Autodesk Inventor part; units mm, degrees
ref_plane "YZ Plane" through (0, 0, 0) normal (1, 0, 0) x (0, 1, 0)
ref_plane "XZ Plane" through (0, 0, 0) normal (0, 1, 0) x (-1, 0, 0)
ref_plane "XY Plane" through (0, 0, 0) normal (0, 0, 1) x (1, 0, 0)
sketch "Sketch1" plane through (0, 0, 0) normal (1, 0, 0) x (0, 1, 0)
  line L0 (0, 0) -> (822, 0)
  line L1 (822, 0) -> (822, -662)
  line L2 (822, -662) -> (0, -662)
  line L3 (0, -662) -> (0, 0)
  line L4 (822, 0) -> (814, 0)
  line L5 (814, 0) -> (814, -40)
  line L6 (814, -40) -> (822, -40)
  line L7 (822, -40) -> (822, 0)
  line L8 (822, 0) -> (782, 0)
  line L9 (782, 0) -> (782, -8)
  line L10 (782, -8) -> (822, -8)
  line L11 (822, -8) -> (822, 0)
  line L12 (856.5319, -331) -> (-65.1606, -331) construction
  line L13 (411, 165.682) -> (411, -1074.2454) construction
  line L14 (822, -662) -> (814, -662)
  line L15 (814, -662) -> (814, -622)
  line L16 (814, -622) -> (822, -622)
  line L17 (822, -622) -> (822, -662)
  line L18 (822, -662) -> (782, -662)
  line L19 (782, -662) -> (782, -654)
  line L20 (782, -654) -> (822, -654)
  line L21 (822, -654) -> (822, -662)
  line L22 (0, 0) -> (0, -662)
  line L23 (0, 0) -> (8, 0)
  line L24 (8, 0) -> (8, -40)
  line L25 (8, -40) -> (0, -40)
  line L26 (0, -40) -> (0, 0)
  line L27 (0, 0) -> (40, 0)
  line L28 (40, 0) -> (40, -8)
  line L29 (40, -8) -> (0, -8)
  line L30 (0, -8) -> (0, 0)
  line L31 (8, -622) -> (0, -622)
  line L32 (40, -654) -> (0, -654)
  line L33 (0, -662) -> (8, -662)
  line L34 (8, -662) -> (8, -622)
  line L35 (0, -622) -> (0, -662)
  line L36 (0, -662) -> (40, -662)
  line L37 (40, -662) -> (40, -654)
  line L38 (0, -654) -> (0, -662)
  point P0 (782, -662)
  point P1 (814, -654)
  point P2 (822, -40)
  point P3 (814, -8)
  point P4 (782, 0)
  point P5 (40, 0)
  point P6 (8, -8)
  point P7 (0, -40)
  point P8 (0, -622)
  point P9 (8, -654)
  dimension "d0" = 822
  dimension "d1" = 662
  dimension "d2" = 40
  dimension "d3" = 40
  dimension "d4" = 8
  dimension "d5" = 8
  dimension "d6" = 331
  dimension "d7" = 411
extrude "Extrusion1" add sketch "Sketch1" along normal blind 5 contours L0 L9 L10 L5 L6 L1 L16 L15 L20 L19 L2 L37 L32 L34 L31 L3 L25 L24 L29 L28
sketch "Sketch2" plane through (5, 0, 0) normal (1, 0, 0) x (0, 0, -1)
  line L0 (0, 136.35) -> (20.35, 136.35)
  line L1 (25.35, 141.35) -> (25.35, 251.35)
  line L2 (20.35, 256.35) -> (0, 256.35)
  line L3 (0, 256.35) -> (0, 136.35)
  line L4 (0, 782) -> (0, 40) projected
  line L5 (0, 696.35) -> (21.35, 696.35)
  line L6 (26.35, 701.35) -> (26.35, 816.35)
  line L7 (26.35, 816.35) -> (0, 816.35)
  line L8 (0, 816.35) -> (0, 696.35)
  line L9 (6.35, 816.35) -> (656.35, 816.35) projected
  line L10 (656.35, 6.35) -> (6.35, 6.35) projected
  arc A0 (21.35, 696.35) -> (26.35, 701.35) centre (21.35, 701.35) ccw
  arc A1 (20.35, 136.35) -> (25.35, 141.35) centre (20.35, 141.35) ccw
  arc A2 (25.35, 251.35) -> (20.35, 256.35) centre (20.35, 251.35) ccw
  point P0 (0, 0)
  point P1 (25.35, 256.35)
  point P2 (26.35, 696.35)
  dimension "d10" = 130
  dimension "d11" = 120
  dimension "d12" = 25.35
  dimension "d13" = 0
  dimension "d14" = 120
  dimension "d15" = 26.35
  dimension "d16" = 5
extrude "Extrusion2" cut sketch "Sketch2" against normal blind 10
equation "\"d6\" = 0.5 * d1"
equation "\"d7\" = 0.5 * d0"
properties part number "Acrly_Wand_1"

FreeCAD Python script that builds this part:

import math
import FreeCAD as App
import Part
import Sketcher
from FreeCAD import Vector

doc = App.newDocument("Part")
body = doc.addObject("PartDesign::Body", "Body")

# Sketch on YZ plane
sketch1 = body.newObject("Sketcher::SketchObject", "Sketch")
sketch1.AttachmentSupport = (doc.getObject("YZ_Plane"), [""])
sketch1.MapMode = "FlatFace"
sketch1.addGeometry([
    Part.LineSegment(Vector(782, 0, 0), Vector(40, 0, 0)),  # 0
    Part.LineSegment(Vector(40, 0, 0), Vector(40, -8, 0)),  # 1
    Part.LineSegment(Vector(40, -8, 0), Vector(8, -8, 0)),  # 2
    Part.LineSegment(Vector(8, -8, 0), Vector(8, -40, 0)),  # 3
    Part.LineSegment(Vector(8, -40, 0), Vector(0, -40, 0)),  # 4
    Part.LineSegment(Vector(0, -40, 0), Vector(0, -622, 0)),  # 5
    Part.LineSegment(Vector(0, -622, 0), Vector(8, -622, 0)),  # 6
    Part.LineSegment(Vector(8, -622, 0), Vector(8, -654, 0)),  # 7
    Part.LineSegment(Vector(8, -654, 0), Vector(40, -654, 0)),  # 8
    Part.LineSegment(Vector(40, -654, 0), Vector(40, -662, 0)),  # 9
    Part.LineSegment(Vector(40, -662, 0), Vector(782, -662, 0)),  # 10
    Part.LineSegment(Vector(782, -662, 0), Vector(782, -654, 0)),  # 11
    Part.LineSegment(Vector(782, -654, 0), Vector(814, -654, 0)),  # 12
    Part.LineSegment(Vector(814, -654, 0), Vector(814, -622, 0)),  # 13
    Part.LineSegment(Vector(814, -622, 0), Vector(822, -622, 0)),  # 14
    Part.LineSegment(Vector(822, -622, 0), Vector(822, -40, 0)),  # 15
    Part.LineSegment(Vector(822, -40, 0), Vector(814, -40, 0)),  # 16
    Part.LineSegment(Vector(814, -40, 0), Vector(814, -8, 0)),  # 17
    Part.LineSegment(Vector(814, -8, 0), Vector(782, -8, 0)),  # 18
    Part.LineSegment(Vector(782, -8, 0), Vector(782, 0, 0)),  # 19
], False)
sketch1.addConstraint([
    Sketcher.Constraint("Coincident", 0, 2, 1, 1),
    Sketcher.Constraint("Coincident", 1, 2, 2, 1),
    Sketcher.Constraint("Coincident", 2, 2, 3, 1),
    Sketcher.Constraint("Coincident", 3, 2, 4, 1),
    Sketcher.Constraint("Coincident", 4, 2, 5, 1),
    Sketcher.Constraint("Coincident", 5, 2, 6, 1),
    Sketcher.Constraint("Coincident", 6, 2, 7, 1),
    Sketcher.Constraint("Coincident", 7, 2, 8, 1),
    Sketcher.Constraint("Coincident", 8, 2, 9, 1),
    Sketcher.Constraint("Coincident", 9, 2, 10, 1),
    Sketcher.Constraint("Coincident", 10, 2, 11, 1),
    Sketcher.Constraint("Coincident", 11, 2, 12, 1),
    Sketcher.Constraint("Coincident", 12, 2, 13, 1),
    Sketcher.Constraint("Coincident", 13, 2, 14, 1),
    Sketcher.Constraint("Coincident", 14, 2, 15, 1),
    Sketcher.Constraint("Coincident", 15, 2, 16, 1),
    Sketcher.Constraint("Coincident", 16, 2, 17, 1),
    Sketcher.Constraint("Coincident", 17, 2, 18, 1),
    Sketcher.Constraint("Coincident", 18, 2, 19, 1),
    Sketcher.Constraint("Coincident", 19, 2, 0, 1),
    Sketcher.Constraint("Horizontal", 0),
    Sketcher.Constraint("Vertical", 1),
    Sketcher.Constraint("Horizontal", 2),
    Sketcher.Constraint("Vertical", 3),
    Sketcher.Constraint("Horizontal", 4),
    Sketcher.Constraint("Vertical", 5),
    Sketcher.Constraint("Horizontal", 6),
    Sketcher.Constraint("Vertical", 7),
    Sketcher.Constraint("Horizontal", 8),
    Sketcher.Constraint("Vertical", 9),
    Sketcher.Constraint("Horizontal", 10),
    Sketcher.Constraint("Vertical", 11),
    Sketcher.Constraint("Horizontal", 12),
    Sketcher.Constraint("Vertical", 13),
    Sketcher.Constraint("Horizontal", 14),
    Sketcher.Constraint("Vertical", 15),
    Sketcher.Constraint("Horizontal", 16),
    Sketcher.Constraint("Vertical", 17),
    Sketcher.Constraint("Horizontal", 18),
    Sketcher.Constraint("Vertical", 19),
    Sketcher.Constraint("PointOnObject", 0, 2, -1),
    Sketcher.Constraint("PointOnObject", 4, 2, -2),
    Sketcher.Constraint("Horizontal", 8, 2, 11, 2),
    Sketcher.Constraint("Horizontal", 6, 2, 13, 2),
    Sketcher.Constraint("Horizontal", 4, 2, 15, 2),
    Sketcher.Constraint("Horizontal", 2, 2, 17, 2),
    Sketcher.Constraint("Vertical", 3, 2, 6, 2),
    Sketcher.Constraint("Vertical", 1, 2, 8, 2),
    Sketcher.Constraint("Vertical", 13, 2, 16, 2),
    Sketcher.Constraint("Vertical", 11, 2, 18, 2),
    Sketcher.Constraint("Equal", 8, 12),
    Sketcher.Constraint("Equal", 6, 14),
    Sketcher.Constraint("Equal", 16, 1),
    Sketcher.Constraint("Equal", 18, 3),
    Sketcher.Constraint("Equal", 3, 7),
    Sketcher.Constraint("Equal", 1, 9),
    Sketcher.Constraint("DistanceX", 4, 2, 4, 1, 8.0),
    Sketcher.Constraint("DistanceX", -1, 1, 0, 2, 40.0),
    Sketcher.Constraint("DistanceY", 9, 2, -1, 1, 662.0),
    Sketcher.Constraint("DistanceX", -1, 1, 14, 2, 822.0),
])
pad1 = body.newObject("PartDesign::Pad", "Pad")
pad1.Profile = sketch1
pad1.Length = 5

# Sketch on YZ plane
sketch2 = body.newObject("Sketcher::SketchObject", "Sketch001")
sketch2.AttachmentSupport = (doc.getObject("YZ_Plane"), [""])
sketch2.MapMode = "FlatFace"
sketch2.AttachmentOffset = App.Placement(Vector(0, 0, 5), App.Rotation())
sketch2.addGeometry([
    Part.LineSegment(Vector(256, 0, 0), Vector(136, 0, 0)),  # 0
    Part.LineSegment(Vector(136, 0, 0), Vector(136, -20, 0)),  # 1
    Part.ArcOfCircle(Part.Circle(Vector(141, -20, 0), Vector(0, 0, 1), 5), math.radians(180), math.radians(270)),  # 2
    Part.LineSegment(Vector(141, -25, 0), Vector(251, -25, 0)),  # 3
    Part.ArcOfCircle(Part.Circle(Vector(251, -20, 0), Vector(0, 0, 1), 5), math.radians(-90), math.radians(0)),  # 4
    Part.LineSegment(Vector(256, -20, 0), Vector(256, 0, 0)),  # 5
    Part.LineSegment(Vector(816, 0, 0), Vector(696, 0, 0)),  # 6
    Part.LineSegment(Vector(696, 0, 0), Vector(696, -21, 0)),  # 7
    Part.ArcOfCircle(Part.Circle(Vector(701, -21, 0), Vector(0, 0, 1), 5), math.radians(180), math.radians(270)),  # 8
    Part.LineSegment(Vector(701, -26, 0), Vector(816, -26, 0)),  # 9
    Part.LineSegment(Vector(816, -26, 0), Vector(816, 0, 0)),  # 10
], False)
sketch2.addConstraint([
    Sketcher.Constraint("Coincident", 0, 2, 1, 1),
    Sketcher.Constraint("Tangent", 1, 2, 2, 1),
    Sketcher.Constraint("Tangent", 2, 2, 3, 1),
    Sketcher.Constraint("Tangent", 3, 2, 4, 1),
    Sketcher.Constraint("Tangent", 4, 2, 5, 1),
    Sketcher.Constraint("Coincident", 5, 2, 0, 1),
    Sketcher.Constraint("Coincident", 6, 2, 7, 1),
    Sketcher.Constraint("Tangent", 7, 2, 8, 1),
    Sketcher.Constraint("Tangent", 8, 2, 9, 1),
    Sketcher.Constraint("Coincident", 9, 2, 10, 1),
    Sketcher.Constraint("Coincident", 10, 2, 6, 1),
    Sketcher.Constraint("Horizontal", 0),
    Sketcher.Constraint("Vertical", 1),
    Sketcher.Constraint("Horizontal", 3),
    Sketcher.Constraint("Vertical", 5),
    Sketcher.Constraint("Horizontal", 6),
    Sketcher.Constraint("Vertical", 7),
    Sketcher.Constraint("Horizontal", 9),
    Sketcher.Constraint("Vertical", 10),
    Sketcher.Constraint("Equal", 2, 4),
    Sketcher.Constraint("Equal", 4, 8),
    Sketcher.Constraint("PointOnObject", 0, 2, -1),
    Sketcher.Constraint("PointOnObject", 6, 2, -1),
    Sketcher.Constraint("Equal", 0, 6),
    Sketcher.Constraint("Radius", 2, 5.0),
    Sketcher.Constraint("DistanceX", 0, 2, 0, 1, 120.0),
    Sketcher.Constraint("DistanceY", 10, 1, 10, 2, 26.35),
    Sketcher.Constraint("DistanceY", 2, 2, -1, 1, 25.35),
    Sketcher.Constraint("DistanceX", 4, 3, 8, 3, 450.0),
    Sketcher.Constraint("DistanceX", -1, 1, 2, 3, 141.35),
])
pocket1 = body.newObject("PartDesign::Pocket", "Pocket")
pocket1.Profile = sketch2
pocket1.Length = 10

doc.recompute()
